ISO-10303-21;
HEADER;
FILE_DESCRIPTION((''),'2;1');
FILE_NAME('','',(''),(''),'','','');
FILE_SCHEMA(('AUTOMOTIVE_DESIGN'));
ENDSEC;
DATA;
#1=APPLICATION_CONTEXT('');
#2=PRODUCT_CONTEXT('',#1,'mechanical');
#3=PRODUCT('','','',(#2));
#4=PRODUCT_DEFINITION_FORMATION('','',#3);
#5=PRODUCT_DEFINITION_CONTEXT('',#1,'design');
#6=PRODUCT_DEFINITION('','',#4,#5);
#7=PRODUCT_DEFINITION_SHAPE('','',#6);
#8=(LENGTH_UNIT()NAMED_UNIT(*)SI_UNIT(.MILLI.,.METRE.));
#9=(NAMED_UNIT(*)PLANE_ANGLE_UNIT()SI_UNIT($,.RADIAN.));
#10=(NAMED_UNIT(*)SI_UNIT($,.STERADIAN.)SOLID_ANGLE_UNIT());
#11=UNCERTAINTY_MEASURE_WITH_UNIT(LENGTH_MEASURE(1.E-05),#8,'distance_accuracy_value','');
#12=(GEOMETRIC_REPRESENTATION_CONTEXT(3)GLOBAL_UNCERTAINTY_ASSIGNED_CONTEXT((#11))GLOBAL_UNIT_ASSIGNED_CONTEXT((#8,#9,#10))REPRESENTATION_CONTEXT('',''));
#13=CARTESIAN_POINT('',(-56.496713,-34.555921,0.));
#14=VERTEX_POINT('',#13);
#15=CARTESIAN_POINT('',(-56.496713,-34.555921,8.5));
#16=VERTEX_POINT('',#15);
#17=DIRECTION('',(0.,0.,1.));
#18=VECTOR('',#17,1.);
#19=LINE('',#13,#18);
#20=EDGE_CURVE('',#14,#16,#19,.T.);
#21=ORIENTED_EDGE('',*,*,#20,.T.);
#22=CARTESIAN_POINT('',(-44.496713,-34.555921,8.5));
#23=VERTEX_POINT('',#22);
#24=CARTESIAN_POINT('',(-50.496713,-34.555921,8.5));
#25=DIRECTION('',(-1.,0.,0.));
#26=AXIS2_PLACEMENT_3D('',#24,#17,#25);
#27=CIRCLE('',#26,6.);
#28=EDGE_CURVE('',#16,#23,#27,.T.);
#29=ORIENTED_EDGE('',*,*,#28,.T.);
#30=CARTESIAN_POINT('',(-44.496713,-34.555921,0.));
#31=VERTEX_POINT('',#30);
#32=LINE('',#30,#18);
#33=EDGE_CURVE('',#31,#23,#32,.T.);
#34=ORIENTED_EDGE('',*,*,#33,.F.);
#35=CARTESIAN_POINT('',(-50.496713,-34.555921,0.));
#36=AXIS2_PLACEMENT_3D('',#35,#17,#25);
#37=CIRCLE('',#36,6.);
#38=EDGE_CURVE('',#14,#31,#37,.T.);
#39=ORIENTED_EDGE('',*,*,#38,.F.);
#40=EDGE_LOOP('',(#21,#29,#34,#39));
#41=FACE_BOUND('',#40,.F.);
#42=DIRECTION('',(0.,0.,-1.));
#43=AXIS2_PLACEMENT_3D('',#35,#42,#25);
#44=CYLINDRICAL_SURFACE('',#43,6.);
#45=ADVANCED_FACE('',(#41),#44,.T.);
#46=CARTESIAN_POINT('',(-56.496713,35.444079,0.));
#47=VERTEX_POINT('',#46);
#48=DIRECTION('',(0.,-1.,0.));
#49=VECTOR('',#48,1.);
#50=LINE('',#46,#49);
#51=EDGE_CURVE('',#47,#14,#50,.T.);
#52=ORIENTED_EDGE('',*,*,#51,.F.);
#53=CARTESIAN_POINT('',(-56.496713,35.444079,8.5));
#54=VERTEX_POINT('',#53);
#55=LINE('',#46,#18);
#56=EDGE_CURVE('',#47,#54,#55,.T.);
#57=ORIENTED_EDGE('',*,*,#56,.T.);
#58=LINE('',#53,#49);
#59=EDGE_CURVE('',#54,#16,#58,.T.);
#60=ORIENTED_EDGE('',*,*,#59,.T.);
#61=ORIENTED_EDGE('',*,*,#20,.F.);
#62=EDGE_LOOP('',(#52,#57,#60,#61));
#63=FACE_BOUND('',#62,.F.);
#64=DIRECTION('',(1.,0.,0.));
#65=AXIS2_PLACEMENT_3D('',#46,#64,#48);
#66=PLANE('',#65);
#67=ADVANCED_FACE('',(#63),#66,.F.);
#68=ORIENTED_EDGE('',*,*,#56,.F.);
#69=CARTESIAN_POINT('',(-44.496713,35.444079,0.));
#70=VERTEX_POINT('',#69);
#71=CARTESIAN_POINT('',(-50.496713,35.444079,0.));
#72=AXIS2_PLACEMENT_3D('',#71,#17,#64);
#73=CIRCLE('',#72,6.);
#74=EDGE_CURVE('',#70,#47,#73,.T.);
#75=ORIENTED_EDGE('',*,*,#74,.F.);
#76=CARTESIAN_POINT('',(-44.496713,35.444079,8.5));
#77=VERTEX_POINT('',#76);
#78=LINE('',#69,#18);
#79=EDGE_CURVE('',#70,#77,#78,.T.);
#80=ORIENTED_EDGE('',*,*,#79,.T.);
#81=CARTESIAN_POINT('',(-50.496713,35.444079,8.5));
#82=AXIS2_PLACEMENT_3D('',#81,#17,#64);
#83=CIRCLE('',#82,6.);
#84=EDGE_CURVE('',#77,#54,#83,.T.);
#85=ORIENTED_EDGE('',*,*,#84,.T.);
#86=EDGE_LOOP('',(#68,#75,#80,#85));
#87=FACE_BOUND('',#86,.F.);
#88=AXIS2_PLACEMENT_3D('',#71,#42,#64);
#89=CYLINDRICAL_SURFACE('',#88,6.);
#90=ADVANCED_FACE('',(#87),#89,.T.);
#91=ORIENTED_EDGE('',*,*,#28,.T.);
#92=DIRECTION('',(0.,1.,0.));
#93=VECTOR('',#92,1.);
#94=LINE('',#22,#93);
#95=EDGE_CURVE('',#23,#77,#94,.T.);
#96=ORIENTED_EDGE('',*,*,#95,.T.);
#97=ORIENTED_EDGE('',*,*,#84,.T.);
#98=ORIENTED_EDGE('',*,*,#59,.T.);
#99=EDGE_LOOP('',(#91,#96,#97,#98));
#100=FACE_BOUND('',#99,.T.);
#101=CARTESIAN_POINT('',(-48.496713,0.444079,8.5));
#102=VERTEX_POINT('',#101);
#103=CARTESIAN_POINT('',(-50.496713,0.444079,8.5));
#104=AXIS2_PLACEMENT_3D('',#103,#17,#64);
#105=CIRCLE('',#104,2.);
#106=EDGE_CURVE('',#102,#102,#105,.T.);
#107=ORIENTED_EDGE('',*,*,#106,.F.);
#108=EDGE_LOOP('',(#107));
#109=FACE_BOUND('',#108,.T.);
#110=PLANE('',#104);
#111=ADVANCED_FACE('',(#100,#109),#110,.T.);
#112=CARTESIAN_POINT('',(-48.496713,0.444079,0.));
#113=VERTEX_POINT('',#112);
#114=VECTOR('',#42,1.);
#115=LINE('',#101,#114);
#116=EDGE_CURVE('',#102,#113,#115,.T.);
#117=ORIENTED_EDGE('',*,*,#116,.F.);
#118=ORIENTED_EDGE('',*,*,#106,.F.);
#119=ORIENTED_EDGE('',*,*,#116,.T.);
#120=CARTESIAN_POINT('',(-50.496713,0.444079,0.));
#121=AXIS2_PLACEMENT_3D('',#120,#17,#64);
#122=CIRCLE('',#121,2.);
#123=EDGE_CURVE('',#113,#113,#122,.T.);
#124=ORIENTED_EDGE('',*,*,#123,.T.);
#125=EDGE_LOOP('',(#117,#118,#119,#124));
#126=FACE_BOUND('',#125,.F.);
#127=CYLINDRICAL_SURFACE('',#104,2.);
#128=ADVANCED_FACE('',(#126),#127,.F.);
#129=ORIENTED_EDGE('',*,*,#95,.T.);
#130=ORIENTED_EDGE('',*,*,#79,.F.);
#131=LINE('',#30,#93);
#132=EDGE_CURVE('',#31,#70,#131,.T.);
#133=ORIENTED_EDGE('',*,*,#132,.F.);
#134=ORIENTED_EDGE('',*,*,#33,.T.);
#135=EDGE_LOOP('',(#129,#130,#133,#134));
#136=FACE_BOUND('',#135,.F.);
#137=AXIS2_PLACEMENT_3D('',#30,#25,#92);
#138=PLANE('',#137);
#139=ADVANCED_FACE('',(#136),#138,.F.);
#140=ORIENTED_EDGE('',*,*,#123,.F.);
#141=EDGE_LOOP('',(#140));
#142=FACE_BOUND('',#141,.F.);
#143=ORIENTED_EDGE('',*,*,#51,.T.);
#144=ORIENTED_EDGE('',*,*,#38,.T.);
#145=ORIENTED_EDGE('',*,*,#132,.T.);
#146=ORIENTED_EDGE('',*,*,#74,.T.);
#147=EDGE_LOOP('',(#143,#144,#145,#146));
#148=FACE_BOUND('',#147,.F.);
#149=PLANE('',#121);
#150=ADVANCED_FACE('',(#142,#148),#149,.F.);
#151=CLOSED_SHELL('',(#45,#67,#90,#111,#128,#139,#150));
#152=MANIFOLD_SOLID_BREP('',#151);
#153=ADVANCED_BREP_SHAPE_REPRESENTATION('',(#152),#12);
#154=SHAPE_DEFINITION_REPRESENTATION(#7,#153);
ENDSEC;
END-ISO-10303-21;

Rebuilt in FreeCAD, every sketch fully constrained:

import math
import FreeCAD as App
import Part
import Sketcher

doc = App.newDocument("Part")
params = doc.addObject("Spreadsheet::Sheet", "Params")
for row, (alias, value) in enumerate([
    ("sketch1_radius", "6 mm"),
    ("sketch1_height", "70 mm"),
    ("pad1_length", "8.5 mm"),
    ("sketch2_diameter", "4 mm"),
    ("pocket1_length", "25 mm"),
], start=1):
    params.set(f"A{row}", alias)
    params.set(f"B{row}", "=" + value)
    params.setAlias(f"B{row}", alias)

body = doc.addObject("PartDesign::Body", "Body")

# Sketch on XY plane
sketch1 = body.newObject("Sketcher::SketchObject", "Sketch")
sketch1.AttachmentSupport = (doc.getObject("XY_Plane"), [""])
sketch1.MapMode = "FlatFace"
sketch1.addGeometry(Part.ArcOfCircle(Part.Circle(App.Vector(-50.496713, 35.444079, 0), App.Vector(0, 0, 1), 6), math.radians(0), math.radians(180)), False)
sketch1.addGeometry(Part.LineSegment(App.Vector(-56.496713, 35.444079, 0), App.Vector(-56.496713, -34.555921, 0)), False)
sketch1.addGeometry(Part.ArcOfCircle(Part.Circle(App.Vector(-50.496713, -34.555921, 0), App.Vector(0, 0, 1), 6), math.radians(180), math.radians(360)), False)
sketch1.addGeometry(Part.LineSegment(App.Vector(-44.496713, -34.555921, 0), App.Vector(-44.496713, 35.444079, 0)), False)
sketch1.addConstraint(Sketcher.Constraint("Tangent", 0, 2, 1, 1))
sketch1.addConstraint(Sketcher.Constraint("Tangent", 1, 2, 2, 1))
sketch1.addConstraint(Sketcher.Constraint("Tangent", 2, 2, 3, 1))
sketch1.addConstraint(Sketcher.Constraint("Tangent", 3, 2, 0, 1))
sketch1.addConstraint(Sketcher.Constraint("Vertical", 1))
sketch1.addConstraint(Sketcher.Constraint("Vertical", 3))
sketch1.addConstraint(Sketcher.Constraint("Radius", 0, 6.0))
sketch1.addConstraint(Sketcher.Constraint("DistanceY", 1, 2, 1, 1, 70.0))
sketch1.addConstraint(Sketcher.Constraint("DistanceY", -1, 1, 0, 3, 35.444079))
sketch1.addConstraint(Sketcher.Constraint("DistanceX", 0, 3, -1, 1, 50.496713))
sketch1.setExpression("Constraints[6]", "Params.sketch1_radius")
sketch1.setExpression("Constraints[7]", "Params.sketch1_height")
pad1 = body.newObject("PartDesign::Pad", "Pad")
pad1.Profile = sketch1
pad1.setExpression("Length", "Params.pad1_length")

# Sketch on XY plane
sketch2 = body.newObject("Sketcher::SketchObject", "Sketch001")
sketch2.AttachmentSupport = (doc.getObject("XY_Plane"), [""])
sketch2.MapMode = "FlatFace"
sketch2.AttachmentOffset = App.Placement(App.Vector(0, 0, 8.5), App.Rotation())
sketch2.addGeometry(Part.Circle(App.Vector(-50.496713, 0.444079, 0), App.Vector(0, 0, 1), 2), False)
sketch2.addConstraint(Sketcher.Constraint("Diameter", 0, 4.0))
sketch2.addConstraint(Sketcher.Constraint("DistanceY", -1, 1, 0, 3, 0.444079))
sketch2.addConstraint(Sketcher.Constraint("DistanceX", 0, 3, -1, 1, 50.496713))
sketch2.setExpression("Constraints[0]", "Params.sketch2_diameter")
pocket1 = body.newObject("PartDesign::Pocket", "Pocket")
pocket1.Profile = sketch2
pocket1.setExpression("Length", "Params.pocket1_length")

doc.recompute()
